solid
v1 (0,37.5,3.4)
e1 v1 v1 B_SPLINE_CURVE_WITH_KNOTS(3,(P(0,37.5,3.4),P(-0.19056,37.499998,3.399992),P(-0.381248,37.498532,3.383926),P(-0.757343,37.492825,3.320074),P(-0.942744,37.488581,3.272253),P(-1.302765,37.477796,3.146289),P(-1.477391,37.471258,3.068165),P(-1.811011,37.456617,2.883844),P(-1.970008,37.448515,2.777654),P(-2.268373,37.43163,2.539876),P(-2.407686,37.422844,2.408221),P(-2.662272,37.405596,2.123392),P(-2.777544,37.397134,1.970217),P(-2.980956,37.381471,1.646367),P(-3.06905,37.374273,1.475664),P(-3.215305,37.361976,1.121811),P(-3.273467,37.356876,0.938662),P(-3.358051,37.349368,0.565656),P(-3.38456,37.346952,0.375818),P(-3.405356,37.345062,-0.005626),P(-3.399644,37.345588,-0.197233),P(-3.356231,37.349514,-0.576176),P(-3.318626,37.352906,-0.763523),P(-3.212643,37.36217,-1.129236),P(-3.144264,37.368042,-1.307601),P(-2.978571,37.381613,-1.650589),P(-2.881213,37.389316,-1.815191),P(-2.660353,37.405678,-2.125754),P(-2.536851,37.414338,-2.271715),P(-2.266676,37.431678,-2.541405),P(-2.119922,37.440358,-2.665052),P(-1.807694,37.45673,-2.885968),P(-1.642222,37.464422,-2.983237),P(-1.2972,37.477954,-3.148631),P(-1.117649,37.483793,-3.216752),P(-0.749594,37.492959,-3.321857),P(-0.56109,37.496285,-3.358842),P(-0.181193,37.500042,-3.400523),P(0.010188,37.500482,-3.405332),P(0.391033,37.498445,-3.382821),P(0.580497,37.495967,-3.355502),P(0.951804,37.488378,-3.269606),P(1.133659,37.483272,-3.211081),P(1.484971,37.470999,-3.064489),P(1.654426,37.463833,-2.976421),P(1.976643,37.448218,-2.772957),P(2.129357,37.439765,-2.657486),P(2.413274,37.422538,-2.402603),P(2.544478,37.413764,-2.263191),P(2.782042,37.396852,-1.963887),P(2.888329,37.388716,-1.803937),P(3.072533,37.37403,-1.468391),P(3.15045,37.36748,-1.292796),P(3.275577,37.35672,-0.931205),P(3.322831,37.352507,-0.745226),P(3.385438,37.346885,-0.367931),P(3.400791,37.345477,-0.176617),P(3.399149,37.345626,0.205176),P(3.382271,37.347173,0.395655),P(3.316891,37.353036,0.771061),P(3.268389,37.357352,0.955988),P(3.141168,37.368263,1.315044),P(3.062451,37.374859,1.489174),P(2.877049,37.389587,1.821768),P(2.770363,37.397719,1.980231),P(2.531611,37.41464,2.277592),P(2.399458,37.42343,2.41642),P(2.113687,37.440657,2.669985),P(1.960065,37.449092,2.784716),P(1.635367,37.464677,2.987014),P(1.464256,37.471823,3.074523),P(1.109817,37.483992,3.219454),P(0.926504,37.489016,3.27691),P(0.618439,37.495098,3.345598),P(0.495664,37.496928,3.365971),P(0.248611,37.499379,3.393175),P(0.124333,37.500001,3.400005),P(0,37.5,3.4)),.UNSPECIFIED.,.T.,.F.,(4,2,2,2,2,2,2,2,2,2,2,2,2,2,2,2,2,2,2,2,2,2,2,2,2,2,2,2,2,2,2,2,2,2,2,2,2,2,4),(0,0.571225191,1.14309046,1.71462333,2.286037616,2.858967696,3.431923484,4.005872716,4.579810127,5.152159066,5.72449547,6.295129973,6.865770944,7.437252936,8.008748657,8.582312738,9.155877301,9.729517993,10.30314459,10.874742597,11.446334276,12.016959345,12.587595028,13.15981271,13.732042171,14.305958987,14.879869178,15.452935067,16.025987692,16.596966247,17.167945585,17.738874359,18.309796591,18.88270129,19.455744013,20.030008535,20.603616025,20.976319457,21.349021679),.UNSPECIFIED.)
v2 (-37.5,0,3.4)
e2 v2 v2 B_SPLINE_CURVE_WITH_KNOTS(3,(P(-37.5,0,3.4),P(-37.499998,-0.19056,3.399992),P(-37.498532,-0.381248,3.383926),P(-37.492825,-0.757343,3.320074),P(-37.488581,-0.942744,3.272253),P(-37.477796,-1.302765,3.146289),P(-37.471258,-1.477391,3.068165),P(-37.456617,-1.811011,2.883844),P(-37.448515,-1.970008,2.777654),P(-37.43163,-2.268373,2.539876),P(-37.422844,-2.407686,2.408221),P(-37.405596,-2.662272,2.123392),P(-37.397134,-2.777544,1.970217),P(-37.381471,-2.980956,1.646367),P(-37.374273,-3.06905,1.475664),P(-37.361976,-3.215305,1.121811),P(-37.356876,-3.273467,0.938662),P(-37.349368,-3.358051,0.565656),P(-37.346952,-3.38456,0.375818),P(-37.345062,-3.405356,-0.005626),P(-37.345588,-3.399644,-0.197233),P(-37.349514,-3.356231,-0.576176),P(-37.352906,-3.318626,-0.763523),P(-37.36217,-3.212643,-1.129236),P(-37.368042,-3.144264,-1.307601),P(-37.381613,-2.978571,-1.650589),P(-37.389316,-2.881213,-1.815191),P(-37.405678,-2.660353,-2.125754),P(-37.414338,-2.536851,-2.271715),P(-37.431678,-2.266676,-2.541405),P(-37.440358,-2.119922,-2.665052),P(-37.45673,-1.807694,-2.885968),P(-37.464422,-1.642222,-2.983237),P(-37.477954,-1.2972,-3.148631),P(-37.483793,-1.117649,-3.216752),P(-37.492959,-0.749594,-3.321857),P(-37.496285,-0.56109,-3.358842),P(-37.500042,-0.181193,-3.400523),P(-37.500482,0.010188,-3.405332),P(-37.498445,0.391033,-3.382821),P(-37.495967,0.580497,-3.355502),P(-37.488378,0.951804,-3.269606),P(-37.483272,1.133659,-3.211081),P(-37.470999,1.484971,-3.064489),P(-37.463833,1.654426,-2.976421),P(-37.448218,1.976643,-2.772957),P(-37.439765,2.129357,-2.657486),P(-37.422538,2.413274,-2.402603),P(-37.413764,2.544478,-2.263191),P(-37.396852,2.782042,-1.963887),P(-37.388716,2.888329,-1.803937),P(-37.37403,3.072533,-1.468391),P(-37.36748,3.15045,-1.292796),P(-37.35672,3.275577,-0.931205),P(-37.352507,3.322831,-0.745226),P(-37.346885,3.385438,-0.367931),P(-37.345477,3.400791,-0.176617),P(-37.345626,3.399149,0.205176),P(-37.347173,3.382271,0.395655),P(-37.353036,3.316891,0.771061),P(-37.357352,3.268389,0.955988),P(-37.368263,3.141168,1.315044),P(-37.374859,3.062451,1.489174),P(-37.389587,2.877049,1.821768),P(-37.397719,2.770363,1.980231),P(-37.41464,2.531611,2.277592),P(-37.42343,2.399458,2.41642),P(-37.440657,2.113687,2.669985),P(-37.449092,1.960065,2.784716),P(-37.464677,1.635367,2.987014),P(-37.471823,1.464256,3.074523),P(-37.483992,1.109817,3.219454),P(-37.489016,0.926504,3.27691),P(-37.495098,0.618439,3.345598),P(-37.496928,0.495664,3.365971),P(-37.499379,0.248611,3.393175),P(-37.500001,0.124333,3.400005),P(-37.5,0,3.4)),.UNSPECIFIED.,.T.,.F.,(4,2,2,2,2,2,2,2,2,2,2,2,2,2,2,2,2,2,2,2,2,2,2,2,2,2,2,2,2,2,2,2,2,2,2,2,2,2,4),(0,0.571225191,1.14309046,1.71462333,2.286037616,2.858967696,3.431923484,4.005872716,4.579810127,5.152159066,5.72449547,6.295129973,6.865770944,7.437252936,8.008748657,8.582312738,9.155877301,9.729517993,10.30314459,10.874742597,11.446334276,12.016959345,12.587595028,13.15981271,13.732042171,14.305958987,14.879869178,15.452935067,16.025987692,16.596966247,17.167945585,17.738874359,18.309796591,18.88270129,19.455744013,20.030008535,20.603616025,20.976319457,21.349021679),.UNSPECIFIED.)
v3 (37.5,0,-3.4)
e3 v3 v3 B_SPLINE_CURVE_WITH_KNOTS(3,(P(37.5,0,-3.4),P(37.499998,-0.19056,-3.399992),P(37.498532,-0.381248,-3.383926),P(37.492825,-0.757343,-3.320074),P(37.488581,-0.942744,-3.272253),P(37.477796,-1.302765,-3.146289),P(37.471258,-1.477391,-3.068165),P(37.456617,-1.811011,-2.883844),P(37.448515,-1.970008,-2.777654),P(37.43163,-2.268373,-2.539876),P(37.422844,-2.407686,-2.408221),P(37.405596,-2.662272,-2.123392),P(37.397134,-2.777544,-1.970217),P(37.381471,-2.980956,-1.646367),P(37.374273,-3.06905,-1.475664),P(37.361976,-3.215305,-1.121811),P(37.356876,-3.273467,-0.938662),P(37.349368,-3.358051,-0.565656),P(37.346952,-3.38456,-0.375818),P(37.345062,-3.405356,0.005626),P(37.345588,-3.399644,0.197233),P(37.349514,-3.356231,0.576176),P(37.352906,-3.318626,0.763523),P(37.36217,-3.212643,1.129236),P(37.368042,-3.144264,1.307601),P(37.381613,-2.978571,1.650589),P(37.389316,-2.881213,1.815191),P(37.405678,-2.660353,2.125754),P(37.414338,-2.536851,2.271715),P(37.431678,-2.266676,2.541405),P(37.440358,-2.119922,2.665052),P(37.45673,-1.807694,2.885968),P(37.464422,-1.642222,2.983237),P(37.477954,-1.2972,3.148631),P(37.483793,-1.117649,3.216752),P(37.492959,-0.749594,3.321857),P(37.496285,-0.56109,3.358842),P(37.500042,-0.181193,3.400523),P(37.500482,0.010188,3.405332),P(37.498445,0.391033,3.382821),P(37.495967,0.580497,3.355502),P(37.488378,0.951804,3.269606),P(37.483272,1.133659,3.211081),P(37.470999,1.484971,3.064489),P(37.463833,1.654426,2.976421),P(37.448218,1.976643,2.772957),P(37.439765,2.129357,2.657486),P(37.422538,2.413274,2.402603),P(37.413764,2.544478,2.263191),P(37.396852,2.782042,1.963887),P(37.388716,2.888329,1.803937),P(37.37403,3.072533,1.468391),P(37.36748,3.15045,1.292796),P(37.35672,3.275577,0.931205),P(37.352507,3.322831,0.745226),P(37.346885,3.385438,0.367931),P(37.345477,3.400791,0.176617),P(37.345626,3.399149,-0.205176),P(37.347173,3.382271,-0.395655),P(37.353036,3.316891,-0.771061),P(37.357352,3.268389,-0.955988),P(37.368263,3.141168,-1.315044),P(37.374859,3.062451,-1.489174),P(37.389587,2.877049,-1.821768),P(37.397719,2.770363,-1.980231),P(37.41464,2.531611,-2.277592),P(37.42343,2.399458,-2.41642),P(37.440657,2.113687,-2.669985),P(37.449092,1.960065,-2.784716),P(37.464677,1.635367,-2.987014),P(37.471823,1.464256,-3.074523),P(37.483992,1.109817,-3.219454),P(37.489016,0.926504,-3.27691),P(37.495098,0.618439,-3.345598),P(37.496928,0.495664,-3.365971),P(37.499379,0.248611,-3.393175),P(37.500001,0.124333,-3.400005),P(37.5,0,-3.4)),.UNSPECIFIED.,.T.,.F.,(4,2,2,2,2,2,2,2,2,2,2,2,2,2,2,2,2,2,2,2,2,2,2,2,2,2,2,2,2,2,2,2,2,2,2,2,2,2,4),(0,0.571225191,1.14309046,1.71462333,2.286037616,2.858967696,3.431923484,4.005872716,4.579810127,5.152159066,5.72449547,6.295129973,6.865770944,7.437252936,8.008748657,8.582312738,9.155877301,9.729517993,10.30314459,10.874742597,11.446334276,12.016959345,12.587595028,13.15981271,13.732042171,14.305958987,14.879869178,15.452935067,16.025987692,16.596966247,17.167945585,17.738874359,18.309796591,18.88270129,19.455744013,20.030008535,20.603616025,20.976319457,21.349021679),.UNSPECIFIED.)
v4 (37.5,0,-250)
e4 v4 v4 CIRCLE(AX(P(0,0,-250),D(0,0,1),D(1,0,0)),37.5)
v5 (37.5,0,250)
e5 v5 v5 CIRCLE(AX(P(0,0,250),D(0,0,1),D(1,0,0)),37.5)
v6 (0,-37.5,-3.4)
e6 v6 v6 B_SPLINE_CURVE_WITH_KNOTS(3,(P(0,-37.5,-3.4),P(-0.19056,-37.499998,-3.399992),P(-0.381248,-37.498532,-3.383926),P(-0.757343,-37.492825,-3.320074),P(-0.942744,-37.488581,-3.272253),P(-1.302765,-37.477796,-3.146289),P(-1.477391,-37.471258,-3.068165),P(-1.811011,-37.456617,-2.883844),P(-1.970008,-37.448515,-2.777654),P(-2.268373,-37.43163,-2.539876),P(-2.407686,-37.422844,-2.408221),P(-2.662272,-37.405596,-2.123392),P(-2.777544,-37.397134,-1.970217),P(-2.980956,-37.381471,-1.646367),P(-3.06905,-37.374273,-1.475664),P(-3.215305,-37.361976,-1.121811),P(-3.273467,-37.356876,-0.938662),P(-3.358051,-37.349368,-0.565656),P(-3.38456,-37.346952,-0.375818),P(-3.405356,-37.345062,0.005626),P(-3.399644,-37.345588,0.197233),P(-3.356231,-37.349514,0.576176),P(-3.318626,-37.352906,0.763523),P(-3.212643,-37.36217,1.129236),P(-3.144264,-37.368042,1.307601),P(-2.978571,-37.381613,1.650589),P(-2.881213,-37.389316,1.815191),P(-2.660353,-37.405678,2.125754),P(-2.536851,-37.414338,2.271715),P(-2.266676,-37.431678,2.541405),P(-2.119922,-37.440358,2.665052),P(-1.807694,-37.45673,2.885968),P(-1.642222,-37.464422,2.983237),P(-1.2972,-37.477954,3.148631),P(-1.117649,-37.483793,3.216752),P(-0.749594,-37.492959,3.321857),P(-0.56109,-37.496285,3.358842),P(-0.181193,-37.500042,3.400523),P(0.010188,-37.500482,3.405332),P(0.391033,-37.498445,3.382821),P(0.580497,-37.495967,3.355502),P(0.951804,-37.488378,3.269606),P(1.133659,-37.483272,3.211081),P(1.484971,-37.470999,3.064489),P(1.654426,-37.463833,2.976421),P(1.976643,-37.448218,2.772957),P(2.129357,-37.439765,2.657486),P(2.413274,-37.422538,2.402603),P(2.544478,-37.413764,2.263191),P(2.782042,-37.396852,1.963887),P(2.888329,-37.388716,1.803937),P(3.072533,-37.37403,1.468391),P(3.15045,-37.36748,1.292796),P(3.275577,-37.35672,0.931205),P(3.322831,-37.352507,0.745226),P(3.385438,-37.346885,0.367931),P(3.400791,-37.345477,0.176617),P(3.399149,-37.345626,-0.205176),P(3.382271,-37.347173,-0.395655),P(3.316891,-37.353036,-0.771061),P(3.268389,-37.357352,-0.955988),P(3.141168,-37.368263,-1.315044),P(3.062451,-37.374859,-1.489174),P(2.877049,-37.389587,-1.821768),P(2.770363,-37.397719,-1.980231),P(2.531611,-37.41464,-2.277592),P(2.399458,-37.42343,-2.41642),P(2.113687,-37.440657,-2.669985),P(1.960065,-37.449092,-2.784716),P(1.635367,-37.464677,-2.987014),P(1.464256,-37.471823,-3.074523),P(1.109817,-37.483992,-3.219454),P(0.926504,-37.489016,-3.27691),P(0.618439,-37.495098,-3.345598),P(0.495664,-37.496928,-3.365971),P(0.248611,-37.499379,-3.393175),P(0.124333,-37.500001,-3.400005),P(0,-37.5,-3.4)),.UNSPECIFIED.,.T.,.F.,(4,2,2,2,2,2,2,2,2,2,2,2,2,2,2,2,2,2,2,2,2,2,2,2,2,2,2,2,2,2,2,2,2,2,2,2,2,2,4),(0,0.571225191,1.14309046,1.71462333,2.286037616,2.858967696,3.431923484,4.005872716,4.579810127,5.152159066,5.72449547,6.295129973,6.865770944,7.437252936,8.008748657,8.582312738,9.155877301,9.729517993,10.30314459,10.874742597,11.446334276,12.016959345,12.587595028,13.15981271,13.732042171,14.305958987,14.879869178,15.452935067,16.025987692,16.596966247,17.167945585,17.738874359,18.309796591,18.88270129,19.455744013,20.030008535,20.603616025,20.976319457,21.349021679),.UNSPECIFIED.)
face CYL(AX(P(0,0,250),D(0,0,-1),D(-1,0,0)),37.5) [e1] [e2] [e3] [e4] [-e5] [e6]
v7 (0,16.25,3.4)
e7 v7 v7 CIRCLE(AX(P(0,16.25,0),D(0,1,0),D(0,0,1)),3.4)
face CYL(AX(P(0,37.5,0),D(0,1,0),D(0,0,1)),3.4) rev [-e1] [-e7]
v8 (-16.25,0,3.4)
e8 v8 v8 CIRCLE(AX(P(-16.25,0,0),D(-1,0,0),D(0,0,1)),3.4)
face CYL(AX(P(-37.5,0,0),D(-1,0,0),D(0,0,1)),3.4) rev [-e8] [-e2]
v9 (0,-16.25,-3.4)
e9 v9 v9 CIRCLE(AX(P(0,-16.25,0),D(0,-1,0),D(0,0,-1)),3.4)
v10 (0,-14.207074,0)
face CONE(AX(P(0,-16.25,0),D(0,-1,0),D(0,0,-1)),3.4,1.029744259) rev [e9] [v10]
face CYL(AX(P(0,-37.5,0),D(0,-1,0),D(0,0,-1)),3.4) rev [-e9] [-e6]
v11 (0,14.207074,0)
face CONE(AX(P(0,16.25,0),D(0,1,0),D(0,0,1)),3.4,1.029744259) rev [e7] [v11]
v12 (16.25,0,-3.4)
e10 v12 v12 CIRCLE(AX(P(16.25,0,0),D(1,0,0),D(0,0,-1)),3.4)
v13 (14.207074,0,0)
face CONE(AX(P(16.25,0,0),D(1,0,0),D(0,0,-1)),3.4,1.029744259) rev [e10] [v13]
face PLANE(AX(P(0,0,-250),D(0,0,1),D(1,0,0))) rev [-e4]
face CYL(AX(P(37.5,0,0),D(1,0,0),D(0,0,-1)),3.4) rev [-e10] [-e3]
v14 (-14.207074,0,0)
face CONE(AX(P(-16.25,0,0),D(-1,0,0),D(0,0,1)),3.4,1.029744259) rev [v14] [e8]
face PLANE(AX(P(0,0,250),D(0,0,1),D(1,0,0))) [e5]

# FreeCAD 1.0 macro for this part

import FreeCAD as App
import Part
import Sketcher
from FreeCAD import Vector

doc = App.newDocument("Part")
body = doc.addObject("PartDesign::Body", "Body")

# Sketch on XY plane
sketch1 = body.newObject("Sketcher::SketchObject", "Sketch")
sketch1.AttachmentSupport = (doc.getObject("XY_Plane"), [""])
sketch1.MapMode = "FlatFace"
sketch1.addGeometry(Part.Circle(Vector(0, 0, 0), Vector(0, 0, 1), 38), False)
sketch1.addConstraint([
    Sketcher.Constraint("Coincident", 0, 3, -1, 1),
    Sketcher.Constraint("Diameter", 0, 75.0),
])
pad1 = body.newObject("PartDesign::Pad", "Pad")
pad1.Profile = sketch1
pad1.Length = 500
pad1.Midplane = True

# Sketch on XZ plane
sketch2 = body.newObject("Sketcher::SketchObject", "Sketch001")
sketch2.AttachmentSupport = (doc.getObject("XZ_Plane"), [""])
sketch2.MapMode = "FlatFace"
sketch2.AttachmentOffset = App.Placement(Vector(0, 0, 37.5), App.Rotation())
sketch2.addGeometry(Part.Circle(Vector(0, 0, 0), Vector(0, 0, 1), 3.4), False)
sketch2.addConstraint([
    Sketcher.Constraint("Coincident", 0, 3, -1, 1),
    Sketcher.Constraint("Diameter", 0, 6.8),
])
doc.recompute()
hole = body.newObject("PartDesign::Hole", "Hole")
hole.Profile = sketch2
hole.ThreadType = "None"
hole.Diameter = 6.8
hole.DepthType = "Dimension"
hole.Depth = 21.25
hole.DrillPoint = "Angled"
hole.DrillPointAngle = 118

# Sketch on XZ plane
sketch3 = body.newObject("Sketcher::SketchObject", "Sketch002")
sketch3.AttachmentSupport = (doc.getObject("XZ_Plane"), [""])
sketch3.MapMode = "FlatFace"
sketch3.AttachmentOffset = App.Placement(Vector(0, 0, -37.5), App.Rotation())
sketch3.addGeometry(Part.Circle(Vector(0, 0, 0), Vector(0, 0, 1), 3.4), False)
sketch3.addConstraint([
    Sketcher.Constraint("Coincident", 0, 3, -1, 1),
    Sketcher.Constraint("Diameter", 0, 6.8),
])
doc.recompute()
hole2 = body.newObject("PartDesign::Hole", "Hole001")
hole2.Profile = sketch3
hole2.ThreadType = "None"
hole2.Diameter = 6.8
hole2.DepthType = "Dimension"
hole2.Depth = 21.25
hole2.DrillPoint = "Angled"
hole2.DrillPointAngle = 118
hole2.Reversed = True

# Sketch on YZ plane
sketch4 = body.newObject("Sketcher::SketchObject", "Sketch003")
sketch4.AttachmentSupport = (doc.getObject("YZ_Plane"), [""])
sketch4.MapMode = "FlatFace"
sketch4.AttachmentOffset = App.Placement(Vector(0, 0, 37.5), App.Rotation())
sketch4.addGeometry(Part.Circle(Vector(0, 0, 0), Vector(0, 0, 1), 3.4), False)
sketch4.addConstraint([
    Sketcher.Constraint("Coincident", 0, 3, -1, 1),
    Sketcher.Constraint("Diameter", 0, 6.8),
])
doc.recompute()
hole3 = body.newObject("PartDesign::Hole", "Hole002")
hole3.Profile = sketch4
hole3.ThreadType = "None"
hole3.Diameter = 6.8
hole3.DepthType = "Dimension"
hole3.Depth = 21.25
hole3.DrillPoint = "Angled"
hole3.DrillPointAngle = 118

# Sketch on YZ plane
sketch5 = body.newObject("Sketcher::SketchObject", "Sketch004")
sketch5.AttachmentSupport = (doc.getObject("YZ_Plane"), [""])
sketch5.MapMode = "FlatFace"
sketch5.AttachmentOffset = App.Placement(Vector(0, 0, -37.5), App.Rotation())
sketch5.addGeometry(Part.Circle(Vector(0, 0, 0), Vector(0, 0, 1), 3.4), False)
sketch5.addConstraint([
    Sketcher.Constraint("Coincident", 0, 3, -1, 1),
    Sketcher.Constraint("Diameter", 0, 6.8),
])
doc.recompute()
hole4 = body.newObject("PartDesign::Hole", "Hole003")
hole4.Profile = sketch5
hole4.ThreadType = "None"
hole4.Diameter = 6.8
hole4.DepthType = "Dimension"
hole4.Depth = 21.25
hole4.DrillPoint = "Angled"
hole4.DrillPointAngle = 118
hole4.Reversed = True

doc.recompute()
